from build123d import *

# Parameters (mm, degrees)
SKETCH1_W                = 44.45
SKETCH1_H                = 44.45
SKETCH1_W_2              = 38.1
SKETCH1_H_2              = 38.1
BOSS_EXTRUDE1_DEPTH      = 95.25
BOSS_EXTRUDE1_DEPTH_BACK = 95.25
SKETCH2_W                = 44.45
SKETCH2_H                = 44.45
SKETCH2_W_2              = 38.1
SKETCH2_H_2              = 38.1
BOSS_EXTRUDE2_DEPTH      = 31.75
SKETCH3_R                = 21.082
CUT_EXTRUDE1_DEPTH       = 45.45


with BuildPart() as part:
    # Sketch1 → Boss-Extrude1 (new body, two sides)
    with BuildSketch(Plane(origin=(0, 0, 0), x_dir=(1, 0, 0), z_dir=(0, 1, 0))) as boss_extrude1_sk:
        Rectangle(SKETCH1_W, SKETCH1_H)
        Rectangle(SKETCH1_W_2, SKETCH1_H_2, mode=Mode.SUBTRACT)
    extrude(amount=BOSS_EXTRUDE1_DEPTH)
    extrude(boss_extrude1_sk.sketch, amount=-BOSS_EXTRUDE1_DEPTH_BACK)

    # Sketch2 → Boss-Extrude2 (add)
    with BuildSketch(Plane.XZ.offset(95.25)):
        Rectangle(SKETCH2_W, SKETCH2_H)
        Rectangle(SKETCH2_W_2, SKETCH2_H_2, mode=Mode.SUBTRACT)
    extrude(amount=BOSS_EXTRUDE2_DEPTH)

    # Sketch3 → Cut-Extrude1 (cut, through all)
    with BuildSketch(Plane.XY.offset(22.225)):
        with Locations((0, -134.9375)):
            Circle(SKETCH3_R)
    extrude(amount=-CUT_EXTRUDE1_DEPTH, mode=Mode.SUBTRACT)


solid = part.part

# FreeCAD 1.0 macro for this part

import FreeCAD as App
import Part
import Sketcher
Q = App.Units.Quantity


def add_polygon(sketch, points):
    """Adds a closed chain of lines whose ends are joined by coincident constraints."""
    first, n = sketch.GeometryCount, len(points)
    for a, b in zip(points, points[1:] + points[:1]):
        sketch.addGeometry(Part.LineSegment(App.Vector(*a, 0), App.Vector(*b, 0)), False)
    for i in range(n):
        sketch.addConstraint(Sketcher.Constraint("Coincident", first + i, 2, first + (i + 1) % n, 1))

doc = App.newDocument("Part")
body = doc.addObject("PartDesign::Body", "Body")

# Sketch on XZ plane
sketch1 = body.newObject("Sketcher::SketchObject", "Sketch")
sketch1.AttachmentSupport = (doc.getObject("XZ_Plane"), [""])
sketch1.MapMode = "FlatFace"
add_polygon(sketch1, [(-22, -22), (-22, 22), (22, 22), (22, -22)])  # lines 0-3
add_polygon(sketch1, [(19, 19), (-19, 19), (-19, -19), (19, -19)])  # lines 4-7
sketch1.addConstraint(Sketcher.Constraint("Vertical", 0))
sketch1.addConstraint(Sketcher.Constraint("Horizontal", 1))
sketch1.addConstraint(Sketcher.Constraint("Vertical", 2))
sketch1.addConstraint(Sketcher.Constraint("Horizontal", 3))
sketch1.addConstraint(Sketcher.Constraint("Horizontal", 4))
sketch1.addConstraint(Sketcher.Constraint("Vertical", 5))
sketch1.addConstraint(Sketcher.Constraint("Horizontal", 6))
sketch1.addConstraint(Sketcher.Constraint("Vertical", 7))
sketch1.addConstraint(Sketcher.Constraint("Symmetric", 0, 2, 2, 2, -1, 1))
sketch1.addConstraint(Sketcher.Constraint("Symmetric", 4, 2, 6, 2, -1, 1))
sketch1.addConstraint(Sketcher.Constraint("Equal", 3, 0))
sketch1.addConstraint(Sketcher.Constraint("Equal", 6, 5))
sketch1.addConstraint(Sketcher.Constraint("DistanceX", 4, 2, 4, 1, Q("1.5 in")))
sketch1.addConstraint(Sketcher.Constraint("DistanceX", 1, 1, 1, 2, Q("1.75 in")))
pad1 = body.newObject("PartDesign::Pad", "Pad")
pad1.Profile = sketch1
pad1.Type = "TwoLengths"
pad1.Length = Q("3.75 in")
pad1.Length2 = Q("3.75 in")
pad1.Reversed = True

# Sketch on XZ plane
sketch2 = body.newObject("Sketcher::SketchObject", "Sketch001")
sketch2.AttachmentSupport = (doc.getObject("XZ_Plane"), [""])
sketch2.MapMode = "FlatFace"
sketch2.AttachmentOffset = App.Placement(App.Vector(0, 0, 3.75 * 25.4), App.Rotation())
add_polygon(sketch2, [(-22, 22), (-22, -22), (22, -22), (22, 22)])  # lines 0-3
add_polygon(sketch2, [(19, -19), (-19, -19), (-19, 19), (19, 19)])  # lines 4-7
sketch2.addConstraint(Sketcher.Constraint("Vertical", 0))
sketch2.addConstraint(Sketcher.Constraint("Horizontal", 1))
sketch2.addConstraint(Sketcher.Constraint("Vertical", 2))
sketch2.addConstraint(Sketcher.Constraint("Horizontal", 3))
sketch2.addConstraint(Sketcher.Constraint("Horizontal", 4))
sketch2.addConstraint(Sketcher.Constraint("Vertical", 5))
sketch2.addConstraint(Sketcher.Constraint("Horizontal", 6))
sketch2.addConstraint(Sketcher.Constraint("Vertical", 7))
sketch2.addConstraint(Sketcher.Constraint("Symmetric", 0, 2, 2, 2, -1, 1))
sketch2.addConstraint(Sketcher.Constraint("Symmetric", 4, 2, 6, 2, -1, 1))
sketch2.addConstraint(Sketcher.Constraint("Equal", 3, 0))
sketch2.addConstraint(Sketcher.Constraint("Equal", 6, 5))
sketch2.addConstraint(Sketcher.Constraint("DistanceX", 4, 2, 4, 1, Q("1.5 in")))
sketch2.addConstraint(Sketcher.Constraint("DistanceX", 1, 1, 1, 2, Q("1.75 in")))
pad2 = body.newObject("PartDesign::Pad", "Pad001")
pad2.Profile = sketch2
pad2.Length = Q("1.25 in")

# Sketch on XY plane
sketch3 = body.newObject("Sketcher::SketchObject", "Sketch002")
sketch3.AttachmentSupport = (doc.getObject("XY_Plane"), [""])
sketch3.MapMode = "FlatFace"
sketch3.AttachmentOffset = App.Placement(App.Vector(0, 0, 0.875 * 25.4), App.Rotation())
sketch3.addGeometry(Part.Circle(App.Vector(0, -135, 0), App.Vector(0, 0, 1), 21), False)
sketch3.addConstraint(Sketcher.Constraint("PointOnObject", 0, 3, -2))
sketch3.addConstraint(Sketcher.Constraint("Diameter", 0, Q("1.66 in")))
sketch3.addConstraint(Sketcher.Constraint("DistanceY", 0, 3, -1, 1, Q("5.3125 in")))
pocket1 = body.newObject("PartDesign::Pocket", "Pocket")
pocket1.Profile = sketch3
pocket1.Type = "ThroughAll"

doc.recompute()
